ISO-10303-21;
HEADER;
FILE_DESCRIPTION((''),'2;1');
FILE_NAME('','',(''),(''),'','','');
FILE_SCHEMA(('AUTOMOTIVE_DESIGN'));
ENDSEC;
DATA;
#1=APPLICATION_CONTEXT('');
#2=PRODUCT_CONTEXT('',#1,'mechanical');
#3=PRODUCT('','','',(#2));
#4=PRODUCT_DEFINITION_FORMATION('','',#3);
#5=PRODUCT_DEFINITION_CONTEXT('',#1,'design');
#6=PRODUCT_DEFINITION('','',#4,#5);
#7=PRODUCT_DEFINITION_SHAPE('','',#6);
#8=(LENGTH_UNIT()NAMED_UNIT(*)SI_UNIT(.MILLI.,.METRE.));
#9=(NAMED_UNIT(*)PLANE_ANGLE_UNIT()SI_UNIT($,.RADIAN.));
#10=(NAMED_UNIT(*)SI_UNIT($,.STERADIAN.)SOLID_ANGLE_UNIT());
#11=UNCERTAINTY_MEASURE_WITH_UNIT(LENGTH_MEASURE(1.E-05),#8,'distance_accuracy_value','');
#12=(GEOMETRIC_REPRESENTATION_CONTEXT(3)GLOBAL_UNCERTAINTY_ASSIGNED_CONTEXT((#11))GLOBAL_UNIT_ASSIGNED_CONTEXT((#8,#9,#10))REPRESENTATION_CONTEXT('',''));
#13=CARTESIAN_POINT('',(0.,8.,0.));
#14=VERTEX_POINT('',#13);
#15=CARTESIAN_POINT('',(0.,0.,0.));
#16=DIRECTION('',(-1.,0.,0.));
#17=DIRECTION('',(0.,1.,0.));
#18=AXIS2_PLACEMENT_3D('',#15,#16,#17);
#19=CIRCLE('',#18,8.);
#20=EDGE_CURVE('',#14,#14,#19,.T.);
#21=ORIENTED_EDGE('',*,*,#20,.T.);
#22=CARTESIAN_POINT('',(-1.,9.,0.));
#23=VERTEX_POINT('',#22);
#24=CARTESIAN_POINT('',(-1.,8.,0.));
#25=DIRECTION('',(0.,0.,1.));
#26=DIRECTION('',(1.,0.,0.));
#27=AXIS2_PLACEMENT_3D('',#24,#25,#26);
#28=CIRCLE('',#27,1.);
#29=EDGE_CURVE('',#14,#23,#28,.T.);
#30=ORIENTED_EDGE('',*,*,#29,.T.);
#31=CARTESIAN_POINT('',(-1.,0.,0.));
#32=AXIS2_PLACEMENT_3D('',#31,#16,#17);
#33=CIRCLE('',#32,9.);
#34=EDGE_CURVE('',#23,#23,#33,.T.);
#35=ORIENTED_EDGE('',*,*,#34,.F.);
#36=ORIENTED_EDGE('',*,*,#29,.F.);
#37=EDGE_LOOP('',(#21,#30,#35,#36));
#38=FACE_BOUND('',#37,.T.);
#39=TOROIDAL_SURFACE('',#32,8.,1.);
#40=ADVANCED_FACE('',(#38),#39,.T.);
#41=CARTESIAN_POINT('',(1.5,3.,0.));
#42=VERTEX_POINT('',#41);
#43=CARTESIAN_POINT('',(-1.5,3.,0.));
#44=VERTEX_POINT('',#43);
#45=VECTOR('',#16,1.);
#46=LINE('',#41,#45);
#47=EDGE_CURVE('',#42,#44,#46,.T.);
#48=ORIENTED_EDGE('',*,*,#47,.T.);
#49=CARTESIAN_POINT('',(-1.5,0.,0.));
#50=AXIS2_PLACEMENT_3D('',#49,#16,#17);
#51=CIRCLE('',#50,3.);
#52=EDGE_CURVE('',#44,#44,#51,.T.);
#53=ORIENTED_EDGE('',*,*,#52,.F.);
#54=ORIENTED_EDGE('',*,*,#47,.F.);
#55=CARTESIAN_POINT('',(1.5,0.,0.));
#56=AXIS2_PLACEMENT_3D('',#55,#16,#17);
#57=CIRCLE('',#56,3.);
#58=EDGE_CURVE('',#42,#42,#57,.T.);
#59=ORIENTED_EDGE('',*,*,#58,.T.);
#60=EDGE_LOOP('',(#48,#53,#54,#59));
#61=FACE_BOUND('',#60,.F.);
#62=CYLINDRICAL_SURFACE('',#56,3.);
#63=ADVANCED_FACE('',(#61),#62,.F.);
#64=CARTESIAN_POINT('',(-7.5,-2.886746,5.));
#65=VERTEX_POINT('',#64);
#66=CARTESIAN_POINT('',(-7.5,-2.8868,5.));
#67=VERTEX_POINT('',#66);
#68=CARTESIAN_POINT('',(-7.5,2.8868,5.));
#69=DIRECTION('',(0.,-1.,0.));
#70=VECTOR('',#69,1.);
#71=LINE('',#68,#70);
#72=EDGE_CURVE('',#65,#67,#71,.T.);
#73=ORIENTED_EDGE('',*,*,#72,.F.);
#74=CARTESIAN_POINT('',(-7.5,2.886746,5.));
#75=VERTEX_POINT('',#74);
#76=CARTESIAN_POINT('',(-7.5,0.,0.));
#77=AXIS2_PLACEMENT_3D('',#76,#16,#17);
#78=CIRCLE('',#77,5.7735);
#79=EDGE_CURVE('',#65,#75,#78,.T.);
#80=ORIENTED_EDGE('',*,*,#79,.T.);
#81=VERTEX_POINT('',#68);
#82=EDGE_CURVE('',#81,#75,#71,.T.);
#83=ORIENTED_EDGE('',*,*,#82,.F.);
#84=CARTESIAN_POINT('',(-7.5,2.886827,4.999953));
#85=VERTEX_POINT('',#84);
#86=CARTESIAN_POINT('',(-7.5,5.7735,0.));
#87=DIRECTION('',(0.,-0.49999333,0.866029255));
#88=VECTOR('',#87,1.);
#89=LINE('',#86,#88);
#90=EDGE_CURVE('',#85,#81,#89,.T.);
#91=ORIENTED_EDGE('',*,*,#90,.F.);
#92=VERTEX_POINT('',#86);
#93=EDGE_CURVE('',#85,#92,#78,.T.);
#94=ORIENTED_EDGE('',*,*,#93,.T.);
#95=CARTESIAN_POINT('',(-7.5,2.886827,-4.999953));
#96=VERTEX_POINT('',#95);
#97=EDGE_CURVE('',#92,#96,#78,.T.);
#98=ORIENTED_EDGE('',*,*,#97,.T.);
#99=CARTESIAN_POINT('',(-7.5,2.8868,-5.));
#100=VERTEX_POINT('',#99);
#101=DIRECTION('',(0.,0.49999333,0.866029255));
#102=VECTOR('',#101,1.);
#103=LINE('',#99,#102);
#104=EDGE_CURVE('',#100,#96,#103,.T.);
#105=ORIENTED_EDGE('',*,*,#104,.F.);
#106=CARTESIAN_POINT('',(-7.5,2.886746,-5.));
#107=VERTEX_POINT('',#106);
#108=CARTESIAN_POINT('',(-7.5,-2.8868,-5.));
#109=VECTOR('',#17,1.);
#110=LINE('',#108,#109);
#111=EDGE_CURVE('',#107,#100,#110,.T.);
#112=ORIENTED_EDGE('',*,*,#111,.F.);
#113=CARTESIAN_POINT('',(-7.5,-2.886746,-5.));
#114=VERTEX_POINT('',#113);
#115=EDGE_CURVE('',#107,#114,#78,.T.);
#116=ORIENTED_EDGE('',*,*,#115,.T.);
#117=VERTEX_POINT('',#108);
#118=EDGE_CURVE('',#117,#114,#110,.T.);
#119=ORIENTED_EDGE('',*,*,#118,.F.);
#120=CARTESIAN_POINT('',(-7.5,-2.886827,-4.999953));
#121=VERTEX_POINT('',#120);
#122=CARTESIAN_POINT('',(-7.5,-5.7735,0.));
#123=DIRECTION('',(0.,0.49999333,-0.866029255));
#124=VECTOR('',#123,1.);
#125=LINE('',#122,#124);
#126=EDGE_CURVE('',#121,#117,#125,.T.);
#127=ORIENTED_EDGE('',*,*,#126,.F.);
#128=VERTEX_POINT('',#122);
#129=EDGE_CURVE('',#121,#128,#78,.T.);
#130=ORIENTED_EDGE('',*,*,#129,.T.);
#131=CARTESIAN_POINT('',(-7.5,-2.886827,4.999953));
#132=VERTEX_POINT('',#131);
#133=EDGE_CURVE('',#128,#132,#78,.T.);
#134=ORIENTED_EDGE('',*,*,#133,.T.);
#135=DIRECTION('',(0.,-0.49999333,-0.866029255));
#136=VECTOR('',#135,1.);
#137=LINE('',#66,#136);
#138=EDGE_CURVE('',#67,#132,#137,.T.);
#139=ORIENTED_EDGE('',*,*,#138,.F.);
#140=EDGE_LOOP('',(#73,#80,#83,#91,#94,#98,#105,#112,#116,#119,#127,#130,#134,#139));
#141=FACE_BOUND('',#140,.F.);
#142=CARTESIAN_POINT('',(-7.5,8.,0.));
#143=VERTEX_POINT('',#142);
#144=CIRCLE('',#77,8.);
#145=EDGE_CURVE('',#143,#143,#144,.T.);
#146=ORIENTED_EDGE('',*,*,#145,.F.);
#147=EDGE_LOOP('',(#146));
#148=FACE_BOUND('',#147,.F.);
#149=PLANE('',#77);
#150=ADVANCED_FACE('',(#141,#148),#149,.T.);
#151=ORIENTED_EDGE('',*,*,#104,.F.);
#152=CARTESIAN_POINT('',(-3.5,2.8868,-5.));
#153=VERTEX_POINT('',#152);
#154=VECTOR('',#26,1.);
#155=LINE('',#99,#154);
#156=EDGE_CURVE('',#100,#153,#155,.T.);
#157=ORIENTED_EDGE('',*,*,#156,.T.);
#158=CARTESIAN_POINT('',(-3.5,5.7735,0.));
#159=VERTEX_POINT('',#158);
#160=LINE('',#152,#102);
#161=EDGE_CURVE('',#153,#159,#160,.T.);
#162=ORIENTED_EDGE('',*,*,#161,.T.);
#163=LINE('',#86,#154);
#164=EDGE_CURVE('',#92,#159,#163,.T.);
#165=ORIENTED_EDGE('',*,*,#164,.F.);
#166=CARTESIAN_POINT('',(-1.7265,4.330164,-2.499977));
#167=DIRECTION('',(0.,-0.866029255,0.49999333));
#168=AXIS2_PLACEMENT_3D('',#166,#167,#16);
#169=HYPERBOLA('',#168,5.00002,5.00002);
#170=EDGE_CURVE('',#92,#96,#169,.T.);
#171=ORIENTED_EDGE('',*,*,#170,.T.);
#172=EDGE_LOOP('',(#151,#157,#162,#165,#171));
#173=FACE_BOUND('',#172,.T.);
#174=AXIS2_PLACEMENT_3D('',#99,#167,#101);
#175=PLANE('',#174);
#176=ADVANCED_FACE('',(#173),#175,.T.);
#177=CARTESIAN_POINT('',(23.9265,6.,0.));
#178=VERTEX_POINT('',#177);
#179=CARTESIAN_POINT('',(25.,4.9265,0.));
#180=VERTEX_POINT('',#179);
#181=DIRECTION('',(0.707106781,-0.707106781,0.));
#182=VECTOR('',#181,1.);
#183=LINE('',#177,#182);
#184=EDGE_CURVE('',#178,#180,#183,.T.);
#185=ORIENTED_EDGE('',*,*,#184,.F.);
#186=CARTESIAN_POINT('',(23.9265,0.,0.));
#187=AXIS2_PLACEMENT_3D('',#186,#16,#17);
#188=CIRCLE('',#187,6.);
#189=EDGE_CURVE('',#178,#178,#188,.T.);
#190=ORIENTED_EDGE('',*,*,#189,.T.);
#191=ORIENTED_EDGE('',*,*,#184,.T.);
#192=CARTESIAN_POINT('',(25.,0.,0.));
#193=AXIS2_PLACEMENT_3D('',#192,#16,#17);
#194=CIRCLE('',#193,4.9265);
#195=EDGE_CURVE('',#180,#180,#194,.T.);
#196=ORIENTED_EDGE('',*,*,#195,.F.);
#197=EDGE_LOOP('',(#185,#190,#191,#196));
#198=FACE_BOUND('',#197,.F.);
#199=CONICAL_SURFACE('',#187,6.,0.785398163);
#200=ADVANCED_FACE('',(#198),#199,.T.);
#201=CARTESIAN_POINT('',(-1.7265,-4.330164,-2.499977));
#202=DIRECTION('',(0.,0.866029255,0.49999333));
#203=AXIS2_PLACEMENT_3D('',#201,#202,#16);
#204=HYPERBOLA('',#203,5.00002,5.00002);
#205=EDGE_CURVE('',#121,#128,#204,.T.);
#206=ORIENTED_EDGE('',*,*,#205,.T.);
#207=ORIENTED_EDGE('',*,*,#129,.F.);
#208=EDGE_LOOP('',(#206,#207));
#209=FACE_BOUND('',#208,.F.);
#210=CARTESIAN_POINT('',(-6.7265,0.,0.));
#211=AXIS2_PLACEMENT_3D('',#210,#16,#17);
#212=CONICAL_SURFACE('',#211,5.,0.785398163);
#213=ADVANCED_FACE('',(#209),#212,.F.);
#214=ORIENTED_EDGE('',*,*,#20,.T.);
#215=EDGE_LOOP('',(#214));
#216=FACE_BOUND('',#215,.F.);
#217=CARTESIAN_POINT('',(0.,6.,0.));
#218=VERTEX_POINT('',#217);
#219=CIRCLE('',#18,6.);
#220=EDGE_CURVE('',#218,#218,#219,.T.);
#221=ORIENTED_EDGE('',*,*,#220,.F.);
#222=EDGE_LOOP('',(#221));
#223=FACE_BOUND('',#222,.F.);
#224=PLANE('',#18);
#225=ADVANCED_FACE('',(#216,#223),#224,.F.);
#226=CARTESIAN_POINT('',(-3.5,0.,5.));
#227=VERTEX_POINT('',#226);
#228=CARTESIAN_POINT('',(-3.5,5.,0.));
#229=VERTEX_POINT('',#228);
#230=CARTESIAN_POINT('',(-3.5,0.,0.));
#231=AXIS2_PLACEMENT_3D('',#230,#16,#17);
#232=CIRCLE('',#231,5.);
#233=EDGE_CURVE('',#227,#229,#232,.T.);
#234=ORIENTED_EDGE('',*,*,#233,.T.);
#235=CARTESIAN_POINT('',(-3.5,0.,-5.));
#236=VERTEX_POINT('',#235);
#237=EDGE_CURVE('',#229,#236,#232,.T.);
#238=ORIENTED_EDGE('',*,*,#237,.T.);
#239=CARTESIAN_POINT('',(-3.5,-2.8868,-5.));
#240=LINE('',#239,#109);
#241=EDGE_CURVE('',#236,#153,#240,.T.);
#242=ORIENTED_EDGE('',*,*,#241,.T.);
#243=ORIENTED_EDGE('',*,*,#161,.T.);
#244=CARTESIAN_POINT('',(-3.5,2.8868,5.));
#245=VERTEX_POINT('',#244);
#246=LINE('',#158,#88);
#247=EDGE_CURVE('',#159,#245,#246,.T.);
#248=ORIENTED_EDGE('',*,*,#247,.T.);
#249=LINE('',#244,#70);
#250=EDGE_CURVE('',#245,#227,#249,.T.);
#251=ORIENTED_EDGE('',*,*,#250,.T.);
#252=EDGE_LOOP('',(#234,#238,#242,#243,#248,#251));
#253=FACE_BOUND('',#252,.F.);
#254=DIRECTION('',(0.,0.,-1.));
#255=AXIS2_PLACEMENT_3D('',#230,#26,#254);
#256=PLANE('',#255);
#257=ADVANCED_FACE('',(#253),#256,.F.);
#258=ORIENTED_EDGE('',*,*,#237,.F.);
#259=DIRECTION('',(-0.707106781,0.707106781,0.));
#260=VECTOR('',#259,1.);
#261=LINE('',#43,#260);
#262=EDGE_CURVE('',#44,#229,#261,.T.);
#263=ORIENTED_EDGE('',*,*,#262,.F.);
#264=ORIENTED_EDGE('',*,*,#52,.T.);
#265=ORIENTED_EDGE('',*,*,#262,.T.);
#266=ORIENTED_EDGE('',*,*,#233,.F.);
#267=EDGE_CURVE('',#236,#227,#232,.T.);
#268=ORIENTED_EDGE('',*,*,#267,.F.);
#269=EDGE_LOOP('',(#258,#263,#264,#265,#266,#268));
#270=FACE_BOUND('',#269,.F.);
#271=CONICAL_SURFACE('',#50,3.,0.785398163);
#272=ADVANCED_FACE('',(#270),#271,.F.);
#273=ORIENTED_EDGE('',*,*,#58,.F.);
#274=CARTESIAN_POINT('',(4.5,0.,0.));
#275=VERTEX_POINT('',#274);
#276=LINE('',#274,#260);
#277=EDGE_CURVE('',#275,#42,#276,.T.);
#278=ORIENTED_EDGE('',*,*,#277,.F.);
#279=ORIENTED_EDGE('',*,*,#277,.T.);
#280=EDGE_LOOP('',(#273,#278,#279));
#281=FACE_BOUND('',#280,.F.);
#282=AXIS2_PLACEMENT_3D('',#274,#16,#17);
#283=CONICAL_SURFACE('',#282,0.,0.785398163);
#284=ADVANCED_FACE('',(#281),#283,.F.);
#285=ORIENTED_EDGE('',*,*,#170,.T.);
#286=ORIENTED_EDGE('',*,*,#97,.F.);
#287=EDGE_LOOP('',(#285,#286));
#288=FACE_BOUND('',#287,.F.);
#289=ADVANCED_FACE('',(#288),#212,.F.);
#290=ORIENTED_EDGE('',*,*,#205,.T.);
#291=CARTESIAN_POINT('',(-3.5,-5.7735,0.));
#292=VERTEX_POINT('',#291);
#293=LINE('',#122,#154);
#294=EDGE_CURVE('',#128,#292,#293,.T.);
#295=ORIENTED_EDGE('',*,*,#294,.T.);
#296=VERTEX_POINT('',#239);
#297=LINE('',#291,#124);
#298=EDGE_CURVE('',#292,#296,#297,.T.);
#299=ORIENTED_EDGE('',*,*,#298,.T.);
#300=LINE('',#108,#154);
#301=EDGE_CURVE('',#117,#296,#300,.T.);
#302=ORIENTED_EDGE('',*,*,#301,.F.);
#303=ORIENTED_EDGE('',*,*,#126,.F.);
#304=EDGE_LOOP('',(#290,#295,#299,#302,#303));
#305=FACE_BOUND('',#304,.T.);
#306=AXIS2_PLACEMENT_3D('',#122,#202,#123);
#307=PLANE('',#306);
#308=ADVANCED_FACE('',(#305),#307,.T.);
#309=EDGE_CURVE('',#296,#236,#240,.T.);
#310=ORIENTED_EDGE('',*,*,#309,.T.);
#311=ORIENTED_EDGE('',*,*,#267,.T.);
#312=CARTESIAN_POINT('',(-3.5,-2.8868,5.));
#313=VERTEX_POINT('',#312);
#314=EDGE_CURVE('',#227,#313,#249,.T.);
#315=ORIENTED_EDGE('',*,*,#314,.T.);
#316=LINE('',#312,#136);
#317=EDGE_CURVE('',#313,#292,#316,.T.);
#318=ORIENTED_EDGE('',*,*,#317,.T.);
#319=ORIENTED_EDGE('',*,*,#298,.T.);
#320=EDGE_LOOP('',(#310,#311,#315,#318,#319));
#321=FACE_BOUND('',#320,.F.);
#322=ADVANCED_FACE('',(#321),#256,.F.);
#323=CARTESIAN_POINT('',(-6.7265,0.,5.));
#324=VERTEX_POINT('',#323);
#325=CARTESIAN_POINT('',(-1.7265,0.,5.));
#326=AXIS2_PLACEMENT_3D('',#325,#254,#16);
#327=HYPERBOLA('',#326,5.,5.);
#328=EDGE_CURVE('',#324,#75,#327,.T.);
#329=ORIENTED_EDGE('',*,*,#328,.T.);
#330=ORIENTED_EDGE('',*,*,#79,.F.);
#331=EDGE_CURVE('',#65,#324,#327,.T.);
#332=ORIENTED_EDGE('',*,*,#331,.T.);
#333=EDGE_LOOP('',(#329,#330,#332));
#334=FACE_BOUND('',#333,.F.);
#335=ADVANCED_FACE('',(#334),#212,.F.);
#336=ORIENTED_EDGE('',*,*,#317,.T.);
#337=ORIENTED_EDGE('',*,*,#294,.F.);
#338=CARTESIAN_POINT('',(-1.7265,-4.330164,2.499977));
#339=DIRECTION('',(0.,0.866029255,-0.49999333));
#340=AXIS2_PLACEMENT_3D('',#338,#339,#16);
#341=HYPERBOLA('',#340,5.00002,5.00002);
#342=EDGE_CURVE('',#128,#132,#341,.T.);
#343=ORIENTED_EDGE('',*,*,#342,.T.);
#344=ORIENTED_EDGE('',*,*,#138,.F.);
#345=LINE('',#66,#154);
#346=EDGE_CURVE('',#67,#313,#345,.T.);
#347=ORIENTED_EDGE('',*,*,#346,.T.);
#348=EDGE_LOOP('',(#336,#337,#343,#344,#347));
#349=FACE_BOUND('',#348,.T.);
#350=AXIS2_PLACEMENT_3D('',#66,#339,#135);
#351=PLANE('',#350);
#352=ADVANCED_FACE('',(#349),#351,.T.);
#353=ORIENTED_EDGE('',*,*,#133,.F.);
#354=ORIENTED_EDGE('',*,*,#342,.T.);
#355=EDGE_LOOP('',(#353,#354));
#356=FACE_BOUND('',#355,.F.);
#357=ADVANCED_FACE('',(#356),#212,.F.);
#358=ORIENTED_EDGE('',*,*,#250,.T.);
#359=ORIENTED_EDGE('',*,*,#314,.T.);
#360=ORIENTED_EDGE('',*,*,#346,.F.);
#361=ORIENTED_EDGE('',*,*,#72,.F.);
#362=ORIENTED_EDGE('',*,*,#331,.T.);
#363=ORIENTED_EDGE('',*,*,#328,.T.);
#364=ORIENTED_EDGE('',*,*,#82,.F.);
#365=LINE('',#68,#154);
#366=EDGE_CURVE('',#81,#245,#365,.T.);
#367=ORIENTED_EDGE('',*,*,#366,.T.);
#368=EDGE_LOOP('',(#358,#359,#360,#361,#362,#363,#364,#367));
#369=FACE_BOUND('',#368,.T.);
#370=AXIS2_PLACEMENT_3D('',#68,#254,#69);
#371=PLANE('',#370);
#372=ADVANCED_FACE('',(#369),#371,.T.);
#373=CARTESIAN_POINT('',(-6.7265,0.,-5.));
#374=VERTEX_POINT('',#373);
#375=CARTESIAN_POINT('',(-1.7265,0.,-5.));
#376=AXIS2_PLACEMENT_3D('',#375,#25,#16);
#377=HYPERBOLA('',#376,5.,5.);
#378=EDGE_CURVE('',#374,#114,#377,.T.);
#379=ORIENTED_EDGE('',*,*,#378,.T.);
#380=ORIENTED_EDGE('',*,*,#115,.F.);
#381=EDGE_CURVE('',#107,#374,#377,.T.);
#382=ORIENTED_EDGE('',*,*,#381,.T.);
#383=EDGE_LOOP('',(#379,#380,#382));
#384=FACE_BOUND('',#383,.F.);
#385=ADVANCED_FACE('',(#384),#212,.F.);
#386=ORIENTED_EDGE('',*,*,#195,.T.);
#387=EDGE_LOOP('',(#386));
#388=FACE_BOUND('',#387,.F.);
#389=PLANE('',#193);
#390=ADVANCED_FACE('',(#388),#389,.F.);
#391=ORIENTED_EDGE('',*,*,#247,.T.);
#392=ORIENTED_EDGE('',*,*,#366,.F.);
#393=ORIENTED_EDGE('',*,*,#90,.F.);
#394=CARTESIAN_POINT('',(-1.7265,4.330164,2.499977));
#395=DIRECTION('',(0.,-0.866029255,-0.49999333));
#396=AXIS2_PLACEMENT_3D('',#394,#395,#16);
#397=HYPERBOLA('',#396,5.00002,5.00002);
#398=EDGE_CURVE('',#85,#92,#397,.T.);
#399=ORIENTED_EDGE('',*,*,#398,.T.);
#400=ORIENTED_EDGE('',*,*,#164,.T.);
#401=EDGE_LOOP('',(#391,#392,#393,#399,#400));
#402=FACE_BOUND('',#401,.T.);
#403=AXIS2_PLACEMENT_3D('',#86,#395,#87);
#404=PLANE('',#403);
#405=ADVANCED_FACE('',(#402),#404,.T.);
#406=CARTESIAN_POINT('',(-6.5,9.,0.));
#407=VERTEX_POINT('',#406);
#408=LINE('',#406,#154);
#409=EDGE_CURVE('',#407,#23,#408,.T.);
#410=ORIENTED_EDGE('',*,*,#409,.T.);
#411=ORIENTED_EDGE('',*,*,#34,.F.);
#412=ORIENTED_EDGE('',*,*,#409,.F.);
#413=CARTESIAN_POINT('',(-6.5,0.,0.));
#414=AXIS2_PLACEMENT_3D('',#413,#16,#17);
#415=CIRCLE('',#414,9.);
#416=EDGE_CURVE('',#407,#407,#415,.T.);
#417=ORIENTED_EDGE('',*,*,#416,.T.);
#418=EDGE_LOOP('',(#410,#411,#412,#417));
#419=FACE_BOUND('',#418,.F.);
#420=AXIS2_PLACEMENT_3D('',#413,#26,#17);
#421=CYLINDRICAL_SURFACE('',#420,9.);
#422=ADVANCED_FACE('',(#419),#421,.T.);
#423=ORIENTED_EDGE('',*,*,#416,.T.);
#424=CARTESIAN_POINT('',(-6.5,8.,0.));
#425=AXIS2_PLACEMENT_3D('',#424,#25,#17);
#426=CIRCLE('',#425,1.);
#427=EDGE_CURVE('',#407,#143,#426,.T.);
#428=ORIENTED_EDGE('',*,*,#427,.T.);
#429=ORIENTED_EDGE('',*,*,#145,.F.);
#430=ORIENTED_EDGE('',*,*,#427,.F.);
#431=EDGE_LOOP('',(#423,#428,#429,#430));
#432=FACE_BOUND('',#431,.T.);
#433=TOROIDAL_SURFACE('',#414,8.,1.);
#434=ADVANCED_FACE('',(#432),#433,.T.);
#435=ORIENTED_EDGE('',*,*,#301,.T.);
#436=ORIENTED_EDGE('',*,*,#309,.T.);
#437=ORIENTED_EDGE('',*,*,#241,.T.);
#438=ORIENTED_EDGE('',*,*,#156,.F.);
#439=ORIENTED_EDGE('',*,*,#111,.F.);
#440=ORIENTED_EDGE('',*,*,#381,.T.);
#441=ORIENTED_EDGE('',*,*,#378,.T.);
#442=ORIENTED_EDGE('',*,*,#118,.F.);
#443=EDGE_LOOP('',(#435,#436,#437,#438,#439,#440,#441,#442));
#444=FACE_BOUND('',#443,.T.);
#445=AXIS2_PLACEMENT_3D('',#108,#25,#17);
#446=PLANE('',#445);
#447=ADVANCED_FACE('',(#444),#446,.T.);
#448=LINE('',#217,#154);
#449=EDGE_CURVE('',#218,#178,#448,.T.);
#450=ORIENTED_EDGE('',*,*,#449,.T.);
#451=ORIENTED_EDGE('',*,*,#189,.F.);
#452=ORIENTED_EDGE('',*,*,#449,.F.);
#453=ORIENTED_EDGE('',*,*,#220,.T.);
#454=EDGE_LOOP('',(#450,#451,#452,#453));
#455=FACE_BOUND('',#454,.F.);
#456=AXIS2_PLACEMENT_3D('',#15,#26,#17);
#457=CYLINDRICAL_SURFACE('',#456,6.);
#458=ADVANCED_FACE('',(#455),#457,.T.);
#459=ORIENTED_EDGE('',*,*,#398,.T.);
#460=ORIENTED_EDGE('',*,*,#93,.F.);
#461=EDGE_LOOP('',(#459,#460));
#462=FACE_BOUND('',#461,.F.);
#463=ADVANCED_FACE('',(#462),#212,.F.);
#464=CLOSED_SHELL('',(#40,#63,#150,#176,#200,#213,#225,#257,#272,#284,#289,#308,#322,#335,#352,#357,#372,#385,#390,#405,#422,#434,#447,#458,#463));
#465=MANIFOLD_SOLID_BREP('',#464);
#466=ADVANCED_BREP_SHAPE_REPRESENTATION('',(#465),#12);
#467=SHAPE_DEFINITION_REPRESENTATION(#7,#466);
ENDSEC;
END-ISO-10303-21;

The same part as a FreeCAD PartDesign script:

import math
import FreeCAD as App
import Part
import Sketcher

V = App.Vector
Q = App.Units.Quantity


def add_polygon(sketch, points):
    """Adds a closed chain of lines whose ends are joined by coincident constraints."""
    first, n = sketch.GeometryCount, len(points)
    for a, b in zip(points, points[1:] + points[:1]):
        sketch.addGeometry(Part.LineSegment(App.Vector(*a, 0), App.Vector(*b, 0)), False)
    for i in range(n):
        sketch.addConstraint(Sketcher.Constraint("Coincident", first + i, 2, first + (i + 1) % n, 1))

doc = App.newDocument("Part")
body = doc.addObject("PartDesign::Body", "Body")

sketch1 = body.newObject("Sketcher::SketchObject", "Sketch")
sketch1.AttachmentSupport = (doc.getObject("XY_Plane"), [""])
sketch1.MapMode = "FlatFace"
sketch1.addGeometry([
    Part.LineSegment(V(4.5, 0, 0), V(25, 0, 0)),
    Part.LineSegment(V(25, 0, 0), V(25, 4.9265, 0)),
    Part.LineSegment(V(25, 4.9265, 0), V(23.9265, 6, 0)),
    Part.LineSegment(V(23.9265, 6, 0), V(0, 6, 0)),
    Part.LineSegment(V(0, 6, 0), V(0, 8, 0)),
    Part.ArcOfCircle(Part.Circle(V(-1, 8, 0), V(0, 0, 1), 1), math.radians(0), math.radians(90)),
    Part.LineSegment(V(-1, 9, 0), V(-6.5, 9, 0)),
    Part.ArcOfCircle(Part.Circle(V(-6.5, 8, 0), V(0, 0, 1), 1), math.radians(90), math.radians(180)),
    Part.LineSegment(V(-7.5, 8, 0), V(-7.5, 5.7735, 0)),
    Part.LineSegment(V(-7.5, 5.7735, 0), V(-6.7265, 5, 0)),
    Part.LineSegment(V(-6.7265, 5, 0), V(-3.5, 5, 0)),
    Part.LineSegment(V(-3.5, 5, 0), V(-1.5, 3, 0)),
    Part.LineSegment(V(-1.5, 3, 0), V(1.5, 3, 0)),
    Part.LineSegment(V(1.5, 3, 0), V(4.5, 0, 0)),
], False)
sketch1.addConstraint([
    Sketcher.Constraint("Coincident", 0, 2, 1, 1),
    Sketcher.Constraint("Coincident", 1, 2, 2, 1),
    Sketcher.Constraint("Coincident", 2, 2, 3, 1),
    Sketcher.Constraint("Coincident", 3, 2, 4, 1),
    Sketcher.Constraint("Tangent", 4, 2, 5, 1),
    Sketcher.Constraint("Tangent", 5, 2, 6, 1),
    Sketcher.Constraint("Tangent", 6, 2, 7, 1),
    Sketcher.Constraint("Tangent", 7, 2, 8, 1),
    Sketcher.Constraint("Coincident", 8, 2, 9, 1),
    Sketcher.Constraint("Coincident", 9, 2, 10, 1),
    Sketcher.Constraint("Coincident", 10, 2, 11, 1),
    Sketcher.Constraint("Coincident", 11, 2, 12, 1),
    Sketcher.Constraint("Coincident", 12, 2, 13, 1),
    Sketcher.Constraint("Coincident", 13, 2, 0, 1),
    Sketcher.Constraint("Horizontal", 0),
    Sketcher.Constraint("Vertical", 1),
    Sketcher.Constraint("Horizontal", 3),
    Sketcher.Constraint("Vertical", 4),
    Sketcher.Constraint("Horizontal", 6),
    Sketcher.Constraint("Vertical", 8),
    Sketcher.Constraint("Horizontal", 10),
    Sketcher.Constraint("Horizontal", 12),
    Sketcher.Constraint("Equal", 5, 7),
    Sketcher.Constraint("PointOnObject", 0, 2, -1),
    Sketcher.Constraint("PointOnObject", 3, 2, -2),
    Sketcher.Constraint("Parallel", 2, 9),
    Sketcher.Constraint("Parallel", 9, 11),
    Sketcher.Constraint("Parallel", 11, 13),
    Sketcher.Constraint("Radius", 5, 1.0),
    Sketcher.Constraint("DistanceX", 12, 1, 12, 2, 3.0),
    Sketcher.Constraint("DistanceY", 4, 1, 4, 2, 2.0),
    Sketcher.Constraint("Angle", 2, Q("135 deg")),
    Sketcher.Constraint("DistanceX", 0, 1, 0, 2, 20.5),
    Sketcher.Constraint("DistanceX", 6, 2, 6, 1, 5.5),
    Sketcher.Constraint("DistanceY", -1, 1, 5, 3, 8.0),
    Sketcher.Constraint("DistanceX", -1, 1, 0, 2, 25.0),
    Sketcher.Constraint("DistanceY", -1, 1, 9, 2, 5.0),
    Sketcher.Constraint("DistanceY", -1, 1, 11, 2, 3.0),
    Sketcher.Constraint("Distance", 9, 1.094),
    Sketcher.Constraint("DistanceX", 3, 2, 3, 1, 23.9265),
])
revolution = body.newObject("PartDesign::Revolution", "Revolution")
revolution.Profile = sketch1
revolution.ReferenceAxis = (sketch1, ["H_Axis"])
revolution.Angle = 360

sketch2 = body.newObject("Sketcher::SketchObject", "Sketch001")
sketch2.AttachmentSupport = (doc.getObject("YZ_Plane"), [""])
sketch2.MapMode = "FlatFace"
sketch2.AttachmentOffset = App.Placement(V(0, 0, -7.5), App.Rotation())
add_polygon(sketch2, [(2.8868, 5), (-2.8868, 5), (-5.7735, 0), (-2.8868, -5), (2.8868, -5), (5.7735, 0)])
sketch2.addConstraint([
    Sketcher.Constraint("Horizontal", 0),
    Sketcher.Constraint("Horizontal", 3),
    Sketcher.Constraint("Symmetric", 0, 2, 3, 2, -1, 1),
    Sketcher.Constraint("Symmetric", 1, 2, 4, 2, -1, 1),
    Sketcher.Constraint("PointOnObject", 1, 2, -1),
    Sketcher.Constraint("Parallel", 2, 5),
    Sketcher.Constraint("Vertical", 0, 2, 2, 2),
    Sketcher.Constraint("Angle", 1, Q("-119.9996 deg")),
    Sketcher.Constraint("DistanceY", -1, 1, 0, 2, 5.0),
    Sketcher.Constraint("DistanceX", 0, 2, 0, 1, 5.7736),
])
pocket1 = body.newObject("PartDesign::Pocket", "Pocket")
pocket1.Profile = sketch2
pocket1.Length = 4
pocket1.Reversed = True

doc.recompute()
